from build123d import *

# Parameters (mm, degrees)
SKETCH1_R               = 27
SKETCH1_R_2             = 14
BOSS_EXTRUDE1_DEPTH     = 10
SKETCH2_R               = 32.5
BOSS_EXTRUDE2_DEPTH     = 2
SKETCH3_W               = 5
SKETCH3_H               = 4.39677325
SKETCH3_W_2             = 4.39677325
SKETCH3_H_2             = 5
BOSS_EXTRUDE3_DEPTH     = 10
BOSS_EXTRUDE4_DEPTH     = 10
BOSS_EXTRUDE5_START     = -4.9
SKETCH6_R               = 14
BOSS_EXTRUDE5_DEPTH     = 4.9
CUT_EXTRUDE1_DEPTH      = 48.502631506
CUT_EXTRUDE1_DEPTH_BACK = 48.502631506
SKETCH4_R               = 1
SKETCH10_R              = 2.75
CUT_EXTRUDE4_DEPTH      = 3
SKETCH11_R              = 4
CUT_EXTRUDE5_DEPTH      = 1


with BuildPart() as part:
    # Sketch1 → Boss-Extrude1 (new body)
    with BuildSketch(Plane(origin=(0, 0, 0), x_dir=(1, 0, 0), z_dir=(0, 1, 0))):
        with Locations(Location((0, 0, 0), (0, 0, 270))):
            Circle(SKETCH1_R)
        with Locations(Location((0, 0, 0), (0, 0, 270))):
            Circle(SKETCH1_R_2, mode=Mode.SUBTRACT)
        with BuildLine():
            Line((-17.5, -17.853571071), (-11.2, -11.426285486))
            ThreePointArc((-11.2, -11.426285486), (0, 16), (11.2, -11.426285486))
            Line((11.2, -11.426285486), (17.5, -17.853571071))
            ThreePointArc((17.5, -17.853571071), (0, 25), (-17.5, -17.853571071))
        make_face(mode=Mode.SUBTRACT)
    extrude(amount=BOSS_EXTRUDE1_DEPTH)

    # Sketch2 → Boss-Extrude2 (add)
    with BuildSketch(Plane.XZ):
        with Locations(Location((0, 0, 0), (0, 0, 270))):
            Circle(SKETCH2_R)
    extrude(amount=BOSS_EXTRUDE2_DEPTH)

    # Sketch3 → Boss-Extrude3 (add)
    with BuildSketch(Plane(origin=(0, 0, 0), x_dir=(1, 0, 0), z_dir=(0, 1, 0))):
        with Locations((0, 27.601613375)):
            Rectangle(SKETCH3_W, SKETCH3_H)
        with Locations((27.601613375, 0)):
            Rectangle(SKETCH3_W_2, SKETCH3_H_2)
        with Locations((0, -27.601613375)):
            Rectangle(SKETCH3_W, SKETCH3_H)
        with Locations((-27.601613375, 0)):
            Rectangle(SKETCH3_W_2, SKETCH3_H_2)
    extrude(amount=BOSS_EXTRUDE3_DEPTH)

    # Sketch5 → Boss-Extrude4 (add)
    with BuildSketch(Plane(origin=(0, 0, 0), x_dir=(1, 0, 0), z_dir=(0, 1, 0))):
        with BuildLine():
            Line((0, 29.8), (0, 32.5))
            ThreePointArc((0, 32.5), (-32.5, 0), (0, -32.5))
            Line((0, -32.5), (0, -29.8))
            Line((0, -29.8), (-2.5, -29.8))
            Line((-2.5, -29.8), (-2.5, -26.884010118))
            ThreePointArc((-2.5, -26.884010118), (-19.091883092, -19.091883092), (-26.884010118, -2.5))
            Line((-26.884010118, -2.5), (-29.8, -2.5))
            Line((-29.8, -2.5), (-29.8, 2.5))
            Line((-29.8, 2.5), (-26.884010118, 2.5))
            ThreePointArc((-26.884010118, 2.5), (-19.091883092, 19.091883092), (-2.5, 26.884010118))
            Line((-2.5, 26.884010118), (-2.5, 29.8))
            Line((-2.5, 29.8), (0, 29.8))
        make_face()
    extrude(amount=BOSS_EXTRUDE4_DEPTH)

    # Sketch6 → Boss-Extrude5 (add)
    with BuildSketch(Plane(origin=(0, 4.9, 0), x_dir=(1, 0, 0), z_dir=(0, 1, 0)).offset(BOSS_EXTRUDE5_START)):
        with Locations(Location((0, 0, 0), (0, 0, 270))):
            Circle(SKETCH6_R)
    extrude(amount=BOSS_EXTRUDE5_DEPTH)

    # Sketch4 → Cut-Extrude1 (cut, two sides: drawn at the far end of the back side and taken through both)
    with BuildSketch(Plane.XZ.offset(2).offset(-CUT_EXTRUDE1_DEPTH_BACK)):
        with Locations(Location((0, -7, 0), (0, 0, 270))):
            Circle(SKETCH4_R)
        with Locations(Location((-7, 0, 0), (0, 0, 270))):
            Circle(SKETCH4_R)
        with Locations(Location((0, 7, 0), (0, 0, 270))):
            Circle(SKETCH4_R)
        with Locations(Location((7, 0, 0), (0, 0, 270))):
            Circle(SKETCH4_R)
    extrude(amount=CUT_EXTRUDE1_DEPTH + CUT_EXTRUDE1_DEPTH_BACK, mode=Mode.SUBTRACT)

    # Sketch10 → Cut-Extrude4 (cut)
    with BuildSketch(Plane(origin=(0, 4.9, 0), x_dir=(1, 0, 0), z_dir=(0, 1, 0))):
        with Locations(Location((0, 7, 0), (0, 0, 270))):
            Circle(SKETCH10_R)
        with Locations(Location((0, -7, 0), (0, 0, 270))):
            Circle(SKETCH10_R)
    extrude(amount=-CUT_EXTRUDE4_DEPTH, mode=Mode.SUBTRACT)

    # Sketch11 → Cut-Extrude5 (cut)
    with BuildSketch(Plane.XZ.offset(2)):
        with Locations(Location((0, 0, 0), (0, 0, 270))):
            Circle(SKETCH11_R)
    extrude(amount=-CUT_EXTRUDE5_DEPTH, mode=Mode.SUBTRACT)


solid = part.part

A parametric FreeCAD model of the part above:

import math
import FreeCAD as App
import Part
import Sketcher
Q = App.Units.Quantity


def add_polygon(sketch, points):
    """Adds a closed chain of lines whose ends are joined by coincident constraints."""
    first, n = sketch.GeometryCount, len(points)
    for a, b in zip(points, points[1:] + points[:1]):
        sketch.addGeometry(Part.LineSegment(App.Vector(*a, 0), App.Vector(*b, 0)), False)
    for i in range(n):
        sketch.addConstraint(Sketcher.Constraint("Coincident", first + i, 2, first + (i + 1) % n, 1))

doc = App.newDocument("Part")
body = doc.addObject("PartDesign::Body", "Body")

# Sketch on XZ plane
sketch1 = body.newObject("Sketcher::SketchObject", "Sketch")
sketch1.AttachmentSupport = (doc.getObject("XZ_Plane"), [""])
sketch1.MapMode = "FlatFace"
sketch1.addGeometry([
    Part.Circle(App.Vector(0, 0, 0), App.Vector(0, 0, 1), 27),  # 0
    Part.LineSegment(App.Vector(-11, 11, 0), App.Vector(-18, 18, 0)),  # 1
    Part.ArcOfCircle(Part.Circle(App.Vector(0, 0, 0), App.Vector(0, 0, 1), 25), math.radians(134), math.radians(406)),  # 2
    Part.LineSegment(App.Vector(18, 18, 0), App.Vector(11, 11, 0)),  # 3
    Part.ArcOfCircle(Part.Circle(App.Vector(0, 0, 0), App.Vector(0, 0, 1), 16), math.radians(134), math.radians(406)),  # 4
    Part.Circle(App.Vector(0, 0, 0), App.Vector(0, 0, 1), 14),  # 5
], False)
sketch1.addConstraint([
    Sketcher.Constraint("Coincident", 1, 2, 2, 1),
    Sketcher.Constraint("Coincident", 2, 2, 3, 1),
    Sketcher.Constraint("Coincident", 3, 2, 4, 2),
    Sketcher.Constraint("Coincident", 4, 1, 1, 1),
    Sketcher.Constraint("Coincident", 0, 3, -1, 1),
    Sketcher.Constraint("Coincident", 2, 3, -1, 1),
    Sketcher.Constraint("Coincident", 4, 3, -1, 1),
    Sketcher.Constraint("Coincident", 5, 3, -1, 1),
    Sketcher.Constraint("Horizontal", 1, 2, 2, 2),
    Sketcher.Constraint("Horizontal", 3, 2, 4, 1),
    Sketcher.Constraint("Diameter", 0, Q("54 mm")),
    Sketcher.Constraint("Diameter", 5, Q("28 mm")),
    Sketcher.Constraint("Radius", 2, Q("25 mm")),
    Sketcher.Constraint("Radius", 4, Q("16 mm")),
    Sketcher.Constraint("DistanceX", 1, 2, 2, 2, Q("35 mm")),
    Sketcher.Constraint("DistanceX", -1, 1, 3, 2, Q("11.2 mm")),
])
pad1 = body.newObject("PartDesign::Pad", "Pad")
pad1.Profile = sketch1
pad1.Length = 10
pad1.Reversed = True

# Sketch on XZ plane
sketch2 = body.newObject("Sketcher::SketchObject", "Sketch001")
sketch2.AttachmentSupport = (doc.getObject("XZ_Plane"), [""])
sketch2.MapMode = "FlatFace"
sketch2.addGeometry(Part.Circle(App.Vector(0, 0, 0), App.Vector(0, 0, 1), 32), False)
sketch2.addConstraint([
    Sketcher.Constraint("Coincident", 0, 3, -1, 1),
    Sketcher.Constraint("Diameter", 0, Q("65 mm")),
])
pad2 = body.newObject("PartDesign::Pad", "Pad001")
pad2.Profile = sketch2
pad2.Length = 2

# Sketch on XZ plane
sketch3 = body.newObject("Sketcher::SketchObject", "Sketch002")
sketch3.AttachmentSupport = (doc.getObject("XZ_Plane"), [""])
sketch3.MapMode = "FlatFace"
add_polygon(sketch3, [(-2.5, -29.8), (-2.5, -25.4), (2.5, -25.4), (2.5, -29.8)])  # lines 0-3
add_polygon(sketch3, [(25.4, -2.5), (25.4, 2.5), (29.8, 2.5), (29.8, -2.5)])  # lines 4-7
add_polygon(sketch3, [(-2.5, 25.4), (-2.5, 29.8), (2.5, 29.8), (2.5, 25.4)])  # lines 8-11
add_polygon(sketch3, [(-29.8, -2.5), (-29.8, 2.5), (-25.4, 2.5), (-25.4, -2.5)])  # lines 12-15
sketch3.addConstraint([
    Sketcher.Constraint("Vertical", 0),
    Sketcher.Constraint("Horizontal", 1),
    Sketcher.Constraint("Vertical", 2),
    Sketcher.Constraint("Horizontal", 3),
    Sketcher.Constraint("Vertical", 4),
    Sketcher.Constraint("Horizontal", 5),
    Sketcher.Constraint("Vertical", 6),
    Sketcher.Constraint("Horizontal", 7),
    Sketcher.Constraint("Vertical", 8),
    Sketcher.Constraint("Horizontal", 9),
    Sketcher.Constraint("Vertical", 10),
    Sketcher.Constraint("Horizontal", 11),
    Sketcher.Constraint("Vertical", 12),
    Sketcher.Constraint("Horizontal", 13),
    Sketcher.Constraint("Vertical", 14),
    Sketcher.Constraint("Horizontal", 15),
    Sketcher.Constraint("Symmetric", 2, 2, 8, 2, -1, 1),
    Sketcher.Constraint("Symmetric", 0, 2, 10, 2, -1, 1),
    Sketcher.Constraint("Symmetric", 6, 2, 12, 2, -1, 1),
    Sketcher.Constraint("Symmetric", 4, 2, 14, 2, -1, 1),
    Sketcher.Constraint("Horizontal", 5, 2, 12, 2),
    Sketcher.Constraint("Vertical", 3, 2, 8, 2),
    Sketcher.Constraint("Equal", 15, 0),
    Sketcher.Constraint("Equal", 11, 4),
    Sketcher.Constraint("DistanceX", 1, 1, 1, 2, Q("5 mm")),
    Sketcher.Constraint("DistanceY", 2, 2, -1, 1, Q("29.8 mm")),
    Sketcher.Constraint("DistanceX", -1, 1, 5, 2, Q("29.8 mm")),
    Sketcher.Constraint("DistanceX", 5, 1, 5, 2, Q("4.396773 mm")),
])
pad3 = body.newObject("PartDesign::Pad", "Pad002")
pad3.Profile = sketch3
pad3.Length = 10
pad3.Reversed = True

# Sketch on XZ plane
sketch4 = body.newObject("Sketcher::SketchObject", "Sketch003")
sketch4.AttachmentSupport = (doc.getObject("XZ_Plane"), [""])
sketch4.MapMode = "FlatFace"
sketch4.addGeometry([
    Part.LineSegment(App.Vector(0, -29.8, 0), App.Vector(0, -32.5, 0)),  # 0
    Part.ArcOfCircle(Part.Circle(App.Vector(0, 0, 0), App.Vector(0, 0, 1), 32.5), math.radians(90), math.radians(270)),  # 1
    Part.LineSegment(App.Vector(0, 32.5, 0), App.Vector(0, 29.8, 0)),  # 2
    Part.LineSegment(App.Vector(0, 29.8, 0), App.Vector(-2.5, 29.8, 0)),  # 3
    Part.LineSegment(App.Vector(-2.5, 29.8, 0), App.Vector(-2.5, 26.9, 0)),  # 4
    Part.ArcOfCircle(Part.Circle(App.Vector(0, 0, 0), App.Vector(0, 0, 1), 27), math.radians(95), math.radians(175)),  # 5
    Part.LineSegment(App.Vector(-26.9, 2.5, 0), App.Vector(-29.8, 2.5, 0)),  # 6
    Part.LineSegment(App.Vector(-29.8, 2.5, 0), App.Vector(-29.8, -2.5, 0)),  # 7
    Part.LineSegment(App.Vector(-29.8, -2.5, 0), App.Vector(-26.9, -2.5, 0)),  # 8
    Part.ArcOfCircle(Part.Circle(App.Vector(0, 0, 0), App.Vector(0, 0, 1), 27), math.radians(-175), math.radians(-95)),  # 9
    Part.LineSegment(App.Vector(-2.5, -26.9, 0), App.Vector(-2.5, -29.8, 0)),  # 10
    Part.LineSegment(App.Vector(-2.5, -29.8, 0), App.Vector(0, -29.8, 0)),  # 11
], False)
sketch4.addConstraint([
    Sketcher.Constraint("Coincident", 0, 2, 1, 2),
    Sketcher.Constraint("Coincident", 1, 1, 2, 1),
    Sketcher.Constraint("Coincident", 2, 2, 3, 1),
    Sketcher.Constraint("Coincident", 3, 2, 4, 1),
    Sketcher.Constraint("Coincident", 4, 2, 5, 1),
    Sketcher.Constraint("Coincident", 5, 2, 6, 1),
    Sketcher.Constraint("Coincident", 6, 2, 7, 1),
    Sketcher.Constraint("Coincident", 7, 2, 8, 1),
    Sketcher.Constraint("Coincident", 8, 2, 9, 1),
    Sketcher.Constraint("Coincident", 9, 2, 10, 1),
    Sketcher.Constraint("Coincident", 10, 2, 11, 1),
    Sketcher.Constraint("Coincident", 11, 2, 0, 1),
    Sketcher.Constraint("Vertical", 0),
    Sketcher.Constraint("Vertical", 2),
    Sketcher.Constraint("Horizontal", 3),
    Sketcher.Constraint("Vertical", 4),
    Sketcher.Constraint("Horizontal", 6),
    Sketcher.Constraint("Vertical", 7),
    Sketcher.Constraint("Horizontal", 8),
    Sketcher.Constraint("Vertical", 10),
    Sketcher.Constraint("Horizontal", 11),
    Sketcher.Constraint("Coincident", 1, 3, -1, 1),
    Sketcher.Constraint("Coincident", 5, 3, -1, 1),
    Sketcher.Constraint("Coincident", 9, 3, -1, 1),
    Sketcher.Constraint("Equal", 5, 9),
    Sketcher.Constraint("Symmetric", 2, 2, 11, 2, -1, 1),
    Sketcher.Constraint("PointOnObject", 0, 2, -2),
    Sketcher.Constraint("Vertical", 5, 2, 8, 2),
    Sketcher.Constraint("Vertical", 4, 2, 9, 2),
    Sketcher.Constraint("Equal", 8, 4),
    Sketcher.Constraint("Radius", 5, Q("27 mm")),
    Sketcher.Constraint("Radius", 1, Q("32.5 mm")),
    Sketcher.Constraint("DistanceY", 7, 2, 7, 1, Q("5 mm")),
    Sketcher.Constraint("DistanceX", 3, 2, 3, 1, Q("2.5 mm")),
    Sketcher.Constraint("DistanceY", 0, 2, 0, 1, Q("2.7 mm")),
])
pad4 = body.newObject("PartDesign::Pad", "Pad003")
pad4.Profile = sketch4
pad4.Length = 10
pad4.Reversed = True

# Sketch on XZ plane
sketch5 = body.newObject("Sketcher::SketchObject", "Sketch004")
sketch5.AttachmentSupport = (doc.getObject("XZ_Plane"), [""])
sketch5.MapMode = "FlatFace"
sketch5.addGeometry(Part.Circle(App.Vector(0, 0, 0), App.Vector(0, 0, 1), 14), False)
sketch5.addConstraint([
    Sketcher.Constraint("Coincident", 0, 3, -1, 1),
    Sketcher.Constraint("Diameter", 0, Q("28 mm")),
])
pad5 = body.newObject("PartDesign::Pad", "Pad004")
pad5.Profile = sketch5
pad5.Length = 4.9
pad5.Reversed = True

# Sketch on XZ plane
sketch6 = body.newObject("Sketcher::SketchObject", "Sketch005")
sketch6.AttachmentSupport = (doc.getObject("XZ_Plane"), [""])
sketch6.MapMode = "FlatFace"
sketch6.AttachmentOffset = App.Placement(App.Vector(0, 0, 2), App.Rotation())
sketch6.addGeometry([
    Part.Circle(App.Vector(0, -7, 0), App.Vector(0, 0, 1), 1),
    Part.Circle(App.Vector(-7, 0, 0), App.Vector(0, 0, 1), 1),
    Part.Circle(App.Vector(0, 7, 0), App.Vector(0, 0, 1), 1),
    Part.Circle(App.Vector(7, 0, 0), App.Vector(0, 0, 1), 1),
], False)
sketch6.addConstraint([
    Sketcher.Constraint("Equal", 0, 1),
    Sketcher.Constraint("Equal", 1, 2),
    Sketcher.Constraint("Equal", 2, 3),
    Sketcher.Constraint("Symmetric", 0, 3, 2, 3, -1, 1),
    Sketcher.Constraint("Symmetric", 1, 3, 3, 3, -1, 1),
    Sketcher.Constraint("PointOnObject", 0, 3, -2),
    Sketcher.Constraint("PointOnObject", 1, 3, -1),
    Sketcher.Constraint("Diameter", 0, Q("2 mm")),
    Sketcher.Constraint("DistanceY", 0, 3, -1, 1, Q("7 mm")),
    Sketcher.Constraint("DistanceX", 1, 3, -1, 1, Q("7 mm")),
])
pocket1 = body.newObject("PartDesign::Pocket", "Pocket")
pocket1.Profile = sketch6
pocket1.Type = "ThroughAll"
pocket1.Midplane = True

# Sketch on XZ plane
sketch7 = body.newObject("Sketcher::SketchObject", "Sketch006")
sketch7.AttachmentSupport = (doc.getObject("XZ_Plane"), [""])
sketch7.MapMode = "FlatFace"
sketch7.AttachmentOffset = App.Placement(App.Vector(0, 0, -4.9), App.Rotation())
sketch7.addGeometry([
    Part.Circle(App.Vector(0, -7, 0), App.Vector(0, 0, 1), 2.8),
    Part.Circle(App.Vector(0, 7, 0), App.Vector(0, 0, 1), 2.8),
], False)
sketch7.addConstraint([
    Sketcher.Constraint("Equal", 0, 1),
    Sketcher.Constraint("Symmetric", 0, 3, 1, 3, -1, 1),
    Sketcher.Constraint("PointOnObject", 0, 3, -2),
    Sketcher.Constraint("Diameter", 0, Q("5.5 mm")),
    Sketcher.Constraint("DistanceY", 0, 3, -1, 1, Q("7 mm")),
])
pocket2 = body.newObject("PartDesign::Pocket", "Pocket001")
pocket2.Profile = sketch7
pocket2.Length = 3
pocket2.Reversed = True

# Sketch on XZ plane
sketch8 = body.newObject("Sketcher::SketchObject", "Sketch007")
sketch8.AttachmentSupport = (doc.getObject("XZ_Plane"), [""])
sketch8.MapMode = "FlatFace"
sketch8.AttachmentOffset = App.Placement(App.Vector(0, 0, 2), App.Rotation())
sketch8.addGeometry(Part.Circle(App.Vector(0, 0, 0), App.Vector(0, 0, 1), 4), False)
sketch8.addConstraint([
    Sketcher.Constraint("Coincident", 0, 3, -1, 1),
    Sketcher.Constraint("Diameter", 0, Q("8 mm")),
])
pocket3 = body.newObject("PartDesign::Pocket", "Pocket002")
pocket3.Profile = sketch8
pocket3.Length = 1

doc.recompute()
